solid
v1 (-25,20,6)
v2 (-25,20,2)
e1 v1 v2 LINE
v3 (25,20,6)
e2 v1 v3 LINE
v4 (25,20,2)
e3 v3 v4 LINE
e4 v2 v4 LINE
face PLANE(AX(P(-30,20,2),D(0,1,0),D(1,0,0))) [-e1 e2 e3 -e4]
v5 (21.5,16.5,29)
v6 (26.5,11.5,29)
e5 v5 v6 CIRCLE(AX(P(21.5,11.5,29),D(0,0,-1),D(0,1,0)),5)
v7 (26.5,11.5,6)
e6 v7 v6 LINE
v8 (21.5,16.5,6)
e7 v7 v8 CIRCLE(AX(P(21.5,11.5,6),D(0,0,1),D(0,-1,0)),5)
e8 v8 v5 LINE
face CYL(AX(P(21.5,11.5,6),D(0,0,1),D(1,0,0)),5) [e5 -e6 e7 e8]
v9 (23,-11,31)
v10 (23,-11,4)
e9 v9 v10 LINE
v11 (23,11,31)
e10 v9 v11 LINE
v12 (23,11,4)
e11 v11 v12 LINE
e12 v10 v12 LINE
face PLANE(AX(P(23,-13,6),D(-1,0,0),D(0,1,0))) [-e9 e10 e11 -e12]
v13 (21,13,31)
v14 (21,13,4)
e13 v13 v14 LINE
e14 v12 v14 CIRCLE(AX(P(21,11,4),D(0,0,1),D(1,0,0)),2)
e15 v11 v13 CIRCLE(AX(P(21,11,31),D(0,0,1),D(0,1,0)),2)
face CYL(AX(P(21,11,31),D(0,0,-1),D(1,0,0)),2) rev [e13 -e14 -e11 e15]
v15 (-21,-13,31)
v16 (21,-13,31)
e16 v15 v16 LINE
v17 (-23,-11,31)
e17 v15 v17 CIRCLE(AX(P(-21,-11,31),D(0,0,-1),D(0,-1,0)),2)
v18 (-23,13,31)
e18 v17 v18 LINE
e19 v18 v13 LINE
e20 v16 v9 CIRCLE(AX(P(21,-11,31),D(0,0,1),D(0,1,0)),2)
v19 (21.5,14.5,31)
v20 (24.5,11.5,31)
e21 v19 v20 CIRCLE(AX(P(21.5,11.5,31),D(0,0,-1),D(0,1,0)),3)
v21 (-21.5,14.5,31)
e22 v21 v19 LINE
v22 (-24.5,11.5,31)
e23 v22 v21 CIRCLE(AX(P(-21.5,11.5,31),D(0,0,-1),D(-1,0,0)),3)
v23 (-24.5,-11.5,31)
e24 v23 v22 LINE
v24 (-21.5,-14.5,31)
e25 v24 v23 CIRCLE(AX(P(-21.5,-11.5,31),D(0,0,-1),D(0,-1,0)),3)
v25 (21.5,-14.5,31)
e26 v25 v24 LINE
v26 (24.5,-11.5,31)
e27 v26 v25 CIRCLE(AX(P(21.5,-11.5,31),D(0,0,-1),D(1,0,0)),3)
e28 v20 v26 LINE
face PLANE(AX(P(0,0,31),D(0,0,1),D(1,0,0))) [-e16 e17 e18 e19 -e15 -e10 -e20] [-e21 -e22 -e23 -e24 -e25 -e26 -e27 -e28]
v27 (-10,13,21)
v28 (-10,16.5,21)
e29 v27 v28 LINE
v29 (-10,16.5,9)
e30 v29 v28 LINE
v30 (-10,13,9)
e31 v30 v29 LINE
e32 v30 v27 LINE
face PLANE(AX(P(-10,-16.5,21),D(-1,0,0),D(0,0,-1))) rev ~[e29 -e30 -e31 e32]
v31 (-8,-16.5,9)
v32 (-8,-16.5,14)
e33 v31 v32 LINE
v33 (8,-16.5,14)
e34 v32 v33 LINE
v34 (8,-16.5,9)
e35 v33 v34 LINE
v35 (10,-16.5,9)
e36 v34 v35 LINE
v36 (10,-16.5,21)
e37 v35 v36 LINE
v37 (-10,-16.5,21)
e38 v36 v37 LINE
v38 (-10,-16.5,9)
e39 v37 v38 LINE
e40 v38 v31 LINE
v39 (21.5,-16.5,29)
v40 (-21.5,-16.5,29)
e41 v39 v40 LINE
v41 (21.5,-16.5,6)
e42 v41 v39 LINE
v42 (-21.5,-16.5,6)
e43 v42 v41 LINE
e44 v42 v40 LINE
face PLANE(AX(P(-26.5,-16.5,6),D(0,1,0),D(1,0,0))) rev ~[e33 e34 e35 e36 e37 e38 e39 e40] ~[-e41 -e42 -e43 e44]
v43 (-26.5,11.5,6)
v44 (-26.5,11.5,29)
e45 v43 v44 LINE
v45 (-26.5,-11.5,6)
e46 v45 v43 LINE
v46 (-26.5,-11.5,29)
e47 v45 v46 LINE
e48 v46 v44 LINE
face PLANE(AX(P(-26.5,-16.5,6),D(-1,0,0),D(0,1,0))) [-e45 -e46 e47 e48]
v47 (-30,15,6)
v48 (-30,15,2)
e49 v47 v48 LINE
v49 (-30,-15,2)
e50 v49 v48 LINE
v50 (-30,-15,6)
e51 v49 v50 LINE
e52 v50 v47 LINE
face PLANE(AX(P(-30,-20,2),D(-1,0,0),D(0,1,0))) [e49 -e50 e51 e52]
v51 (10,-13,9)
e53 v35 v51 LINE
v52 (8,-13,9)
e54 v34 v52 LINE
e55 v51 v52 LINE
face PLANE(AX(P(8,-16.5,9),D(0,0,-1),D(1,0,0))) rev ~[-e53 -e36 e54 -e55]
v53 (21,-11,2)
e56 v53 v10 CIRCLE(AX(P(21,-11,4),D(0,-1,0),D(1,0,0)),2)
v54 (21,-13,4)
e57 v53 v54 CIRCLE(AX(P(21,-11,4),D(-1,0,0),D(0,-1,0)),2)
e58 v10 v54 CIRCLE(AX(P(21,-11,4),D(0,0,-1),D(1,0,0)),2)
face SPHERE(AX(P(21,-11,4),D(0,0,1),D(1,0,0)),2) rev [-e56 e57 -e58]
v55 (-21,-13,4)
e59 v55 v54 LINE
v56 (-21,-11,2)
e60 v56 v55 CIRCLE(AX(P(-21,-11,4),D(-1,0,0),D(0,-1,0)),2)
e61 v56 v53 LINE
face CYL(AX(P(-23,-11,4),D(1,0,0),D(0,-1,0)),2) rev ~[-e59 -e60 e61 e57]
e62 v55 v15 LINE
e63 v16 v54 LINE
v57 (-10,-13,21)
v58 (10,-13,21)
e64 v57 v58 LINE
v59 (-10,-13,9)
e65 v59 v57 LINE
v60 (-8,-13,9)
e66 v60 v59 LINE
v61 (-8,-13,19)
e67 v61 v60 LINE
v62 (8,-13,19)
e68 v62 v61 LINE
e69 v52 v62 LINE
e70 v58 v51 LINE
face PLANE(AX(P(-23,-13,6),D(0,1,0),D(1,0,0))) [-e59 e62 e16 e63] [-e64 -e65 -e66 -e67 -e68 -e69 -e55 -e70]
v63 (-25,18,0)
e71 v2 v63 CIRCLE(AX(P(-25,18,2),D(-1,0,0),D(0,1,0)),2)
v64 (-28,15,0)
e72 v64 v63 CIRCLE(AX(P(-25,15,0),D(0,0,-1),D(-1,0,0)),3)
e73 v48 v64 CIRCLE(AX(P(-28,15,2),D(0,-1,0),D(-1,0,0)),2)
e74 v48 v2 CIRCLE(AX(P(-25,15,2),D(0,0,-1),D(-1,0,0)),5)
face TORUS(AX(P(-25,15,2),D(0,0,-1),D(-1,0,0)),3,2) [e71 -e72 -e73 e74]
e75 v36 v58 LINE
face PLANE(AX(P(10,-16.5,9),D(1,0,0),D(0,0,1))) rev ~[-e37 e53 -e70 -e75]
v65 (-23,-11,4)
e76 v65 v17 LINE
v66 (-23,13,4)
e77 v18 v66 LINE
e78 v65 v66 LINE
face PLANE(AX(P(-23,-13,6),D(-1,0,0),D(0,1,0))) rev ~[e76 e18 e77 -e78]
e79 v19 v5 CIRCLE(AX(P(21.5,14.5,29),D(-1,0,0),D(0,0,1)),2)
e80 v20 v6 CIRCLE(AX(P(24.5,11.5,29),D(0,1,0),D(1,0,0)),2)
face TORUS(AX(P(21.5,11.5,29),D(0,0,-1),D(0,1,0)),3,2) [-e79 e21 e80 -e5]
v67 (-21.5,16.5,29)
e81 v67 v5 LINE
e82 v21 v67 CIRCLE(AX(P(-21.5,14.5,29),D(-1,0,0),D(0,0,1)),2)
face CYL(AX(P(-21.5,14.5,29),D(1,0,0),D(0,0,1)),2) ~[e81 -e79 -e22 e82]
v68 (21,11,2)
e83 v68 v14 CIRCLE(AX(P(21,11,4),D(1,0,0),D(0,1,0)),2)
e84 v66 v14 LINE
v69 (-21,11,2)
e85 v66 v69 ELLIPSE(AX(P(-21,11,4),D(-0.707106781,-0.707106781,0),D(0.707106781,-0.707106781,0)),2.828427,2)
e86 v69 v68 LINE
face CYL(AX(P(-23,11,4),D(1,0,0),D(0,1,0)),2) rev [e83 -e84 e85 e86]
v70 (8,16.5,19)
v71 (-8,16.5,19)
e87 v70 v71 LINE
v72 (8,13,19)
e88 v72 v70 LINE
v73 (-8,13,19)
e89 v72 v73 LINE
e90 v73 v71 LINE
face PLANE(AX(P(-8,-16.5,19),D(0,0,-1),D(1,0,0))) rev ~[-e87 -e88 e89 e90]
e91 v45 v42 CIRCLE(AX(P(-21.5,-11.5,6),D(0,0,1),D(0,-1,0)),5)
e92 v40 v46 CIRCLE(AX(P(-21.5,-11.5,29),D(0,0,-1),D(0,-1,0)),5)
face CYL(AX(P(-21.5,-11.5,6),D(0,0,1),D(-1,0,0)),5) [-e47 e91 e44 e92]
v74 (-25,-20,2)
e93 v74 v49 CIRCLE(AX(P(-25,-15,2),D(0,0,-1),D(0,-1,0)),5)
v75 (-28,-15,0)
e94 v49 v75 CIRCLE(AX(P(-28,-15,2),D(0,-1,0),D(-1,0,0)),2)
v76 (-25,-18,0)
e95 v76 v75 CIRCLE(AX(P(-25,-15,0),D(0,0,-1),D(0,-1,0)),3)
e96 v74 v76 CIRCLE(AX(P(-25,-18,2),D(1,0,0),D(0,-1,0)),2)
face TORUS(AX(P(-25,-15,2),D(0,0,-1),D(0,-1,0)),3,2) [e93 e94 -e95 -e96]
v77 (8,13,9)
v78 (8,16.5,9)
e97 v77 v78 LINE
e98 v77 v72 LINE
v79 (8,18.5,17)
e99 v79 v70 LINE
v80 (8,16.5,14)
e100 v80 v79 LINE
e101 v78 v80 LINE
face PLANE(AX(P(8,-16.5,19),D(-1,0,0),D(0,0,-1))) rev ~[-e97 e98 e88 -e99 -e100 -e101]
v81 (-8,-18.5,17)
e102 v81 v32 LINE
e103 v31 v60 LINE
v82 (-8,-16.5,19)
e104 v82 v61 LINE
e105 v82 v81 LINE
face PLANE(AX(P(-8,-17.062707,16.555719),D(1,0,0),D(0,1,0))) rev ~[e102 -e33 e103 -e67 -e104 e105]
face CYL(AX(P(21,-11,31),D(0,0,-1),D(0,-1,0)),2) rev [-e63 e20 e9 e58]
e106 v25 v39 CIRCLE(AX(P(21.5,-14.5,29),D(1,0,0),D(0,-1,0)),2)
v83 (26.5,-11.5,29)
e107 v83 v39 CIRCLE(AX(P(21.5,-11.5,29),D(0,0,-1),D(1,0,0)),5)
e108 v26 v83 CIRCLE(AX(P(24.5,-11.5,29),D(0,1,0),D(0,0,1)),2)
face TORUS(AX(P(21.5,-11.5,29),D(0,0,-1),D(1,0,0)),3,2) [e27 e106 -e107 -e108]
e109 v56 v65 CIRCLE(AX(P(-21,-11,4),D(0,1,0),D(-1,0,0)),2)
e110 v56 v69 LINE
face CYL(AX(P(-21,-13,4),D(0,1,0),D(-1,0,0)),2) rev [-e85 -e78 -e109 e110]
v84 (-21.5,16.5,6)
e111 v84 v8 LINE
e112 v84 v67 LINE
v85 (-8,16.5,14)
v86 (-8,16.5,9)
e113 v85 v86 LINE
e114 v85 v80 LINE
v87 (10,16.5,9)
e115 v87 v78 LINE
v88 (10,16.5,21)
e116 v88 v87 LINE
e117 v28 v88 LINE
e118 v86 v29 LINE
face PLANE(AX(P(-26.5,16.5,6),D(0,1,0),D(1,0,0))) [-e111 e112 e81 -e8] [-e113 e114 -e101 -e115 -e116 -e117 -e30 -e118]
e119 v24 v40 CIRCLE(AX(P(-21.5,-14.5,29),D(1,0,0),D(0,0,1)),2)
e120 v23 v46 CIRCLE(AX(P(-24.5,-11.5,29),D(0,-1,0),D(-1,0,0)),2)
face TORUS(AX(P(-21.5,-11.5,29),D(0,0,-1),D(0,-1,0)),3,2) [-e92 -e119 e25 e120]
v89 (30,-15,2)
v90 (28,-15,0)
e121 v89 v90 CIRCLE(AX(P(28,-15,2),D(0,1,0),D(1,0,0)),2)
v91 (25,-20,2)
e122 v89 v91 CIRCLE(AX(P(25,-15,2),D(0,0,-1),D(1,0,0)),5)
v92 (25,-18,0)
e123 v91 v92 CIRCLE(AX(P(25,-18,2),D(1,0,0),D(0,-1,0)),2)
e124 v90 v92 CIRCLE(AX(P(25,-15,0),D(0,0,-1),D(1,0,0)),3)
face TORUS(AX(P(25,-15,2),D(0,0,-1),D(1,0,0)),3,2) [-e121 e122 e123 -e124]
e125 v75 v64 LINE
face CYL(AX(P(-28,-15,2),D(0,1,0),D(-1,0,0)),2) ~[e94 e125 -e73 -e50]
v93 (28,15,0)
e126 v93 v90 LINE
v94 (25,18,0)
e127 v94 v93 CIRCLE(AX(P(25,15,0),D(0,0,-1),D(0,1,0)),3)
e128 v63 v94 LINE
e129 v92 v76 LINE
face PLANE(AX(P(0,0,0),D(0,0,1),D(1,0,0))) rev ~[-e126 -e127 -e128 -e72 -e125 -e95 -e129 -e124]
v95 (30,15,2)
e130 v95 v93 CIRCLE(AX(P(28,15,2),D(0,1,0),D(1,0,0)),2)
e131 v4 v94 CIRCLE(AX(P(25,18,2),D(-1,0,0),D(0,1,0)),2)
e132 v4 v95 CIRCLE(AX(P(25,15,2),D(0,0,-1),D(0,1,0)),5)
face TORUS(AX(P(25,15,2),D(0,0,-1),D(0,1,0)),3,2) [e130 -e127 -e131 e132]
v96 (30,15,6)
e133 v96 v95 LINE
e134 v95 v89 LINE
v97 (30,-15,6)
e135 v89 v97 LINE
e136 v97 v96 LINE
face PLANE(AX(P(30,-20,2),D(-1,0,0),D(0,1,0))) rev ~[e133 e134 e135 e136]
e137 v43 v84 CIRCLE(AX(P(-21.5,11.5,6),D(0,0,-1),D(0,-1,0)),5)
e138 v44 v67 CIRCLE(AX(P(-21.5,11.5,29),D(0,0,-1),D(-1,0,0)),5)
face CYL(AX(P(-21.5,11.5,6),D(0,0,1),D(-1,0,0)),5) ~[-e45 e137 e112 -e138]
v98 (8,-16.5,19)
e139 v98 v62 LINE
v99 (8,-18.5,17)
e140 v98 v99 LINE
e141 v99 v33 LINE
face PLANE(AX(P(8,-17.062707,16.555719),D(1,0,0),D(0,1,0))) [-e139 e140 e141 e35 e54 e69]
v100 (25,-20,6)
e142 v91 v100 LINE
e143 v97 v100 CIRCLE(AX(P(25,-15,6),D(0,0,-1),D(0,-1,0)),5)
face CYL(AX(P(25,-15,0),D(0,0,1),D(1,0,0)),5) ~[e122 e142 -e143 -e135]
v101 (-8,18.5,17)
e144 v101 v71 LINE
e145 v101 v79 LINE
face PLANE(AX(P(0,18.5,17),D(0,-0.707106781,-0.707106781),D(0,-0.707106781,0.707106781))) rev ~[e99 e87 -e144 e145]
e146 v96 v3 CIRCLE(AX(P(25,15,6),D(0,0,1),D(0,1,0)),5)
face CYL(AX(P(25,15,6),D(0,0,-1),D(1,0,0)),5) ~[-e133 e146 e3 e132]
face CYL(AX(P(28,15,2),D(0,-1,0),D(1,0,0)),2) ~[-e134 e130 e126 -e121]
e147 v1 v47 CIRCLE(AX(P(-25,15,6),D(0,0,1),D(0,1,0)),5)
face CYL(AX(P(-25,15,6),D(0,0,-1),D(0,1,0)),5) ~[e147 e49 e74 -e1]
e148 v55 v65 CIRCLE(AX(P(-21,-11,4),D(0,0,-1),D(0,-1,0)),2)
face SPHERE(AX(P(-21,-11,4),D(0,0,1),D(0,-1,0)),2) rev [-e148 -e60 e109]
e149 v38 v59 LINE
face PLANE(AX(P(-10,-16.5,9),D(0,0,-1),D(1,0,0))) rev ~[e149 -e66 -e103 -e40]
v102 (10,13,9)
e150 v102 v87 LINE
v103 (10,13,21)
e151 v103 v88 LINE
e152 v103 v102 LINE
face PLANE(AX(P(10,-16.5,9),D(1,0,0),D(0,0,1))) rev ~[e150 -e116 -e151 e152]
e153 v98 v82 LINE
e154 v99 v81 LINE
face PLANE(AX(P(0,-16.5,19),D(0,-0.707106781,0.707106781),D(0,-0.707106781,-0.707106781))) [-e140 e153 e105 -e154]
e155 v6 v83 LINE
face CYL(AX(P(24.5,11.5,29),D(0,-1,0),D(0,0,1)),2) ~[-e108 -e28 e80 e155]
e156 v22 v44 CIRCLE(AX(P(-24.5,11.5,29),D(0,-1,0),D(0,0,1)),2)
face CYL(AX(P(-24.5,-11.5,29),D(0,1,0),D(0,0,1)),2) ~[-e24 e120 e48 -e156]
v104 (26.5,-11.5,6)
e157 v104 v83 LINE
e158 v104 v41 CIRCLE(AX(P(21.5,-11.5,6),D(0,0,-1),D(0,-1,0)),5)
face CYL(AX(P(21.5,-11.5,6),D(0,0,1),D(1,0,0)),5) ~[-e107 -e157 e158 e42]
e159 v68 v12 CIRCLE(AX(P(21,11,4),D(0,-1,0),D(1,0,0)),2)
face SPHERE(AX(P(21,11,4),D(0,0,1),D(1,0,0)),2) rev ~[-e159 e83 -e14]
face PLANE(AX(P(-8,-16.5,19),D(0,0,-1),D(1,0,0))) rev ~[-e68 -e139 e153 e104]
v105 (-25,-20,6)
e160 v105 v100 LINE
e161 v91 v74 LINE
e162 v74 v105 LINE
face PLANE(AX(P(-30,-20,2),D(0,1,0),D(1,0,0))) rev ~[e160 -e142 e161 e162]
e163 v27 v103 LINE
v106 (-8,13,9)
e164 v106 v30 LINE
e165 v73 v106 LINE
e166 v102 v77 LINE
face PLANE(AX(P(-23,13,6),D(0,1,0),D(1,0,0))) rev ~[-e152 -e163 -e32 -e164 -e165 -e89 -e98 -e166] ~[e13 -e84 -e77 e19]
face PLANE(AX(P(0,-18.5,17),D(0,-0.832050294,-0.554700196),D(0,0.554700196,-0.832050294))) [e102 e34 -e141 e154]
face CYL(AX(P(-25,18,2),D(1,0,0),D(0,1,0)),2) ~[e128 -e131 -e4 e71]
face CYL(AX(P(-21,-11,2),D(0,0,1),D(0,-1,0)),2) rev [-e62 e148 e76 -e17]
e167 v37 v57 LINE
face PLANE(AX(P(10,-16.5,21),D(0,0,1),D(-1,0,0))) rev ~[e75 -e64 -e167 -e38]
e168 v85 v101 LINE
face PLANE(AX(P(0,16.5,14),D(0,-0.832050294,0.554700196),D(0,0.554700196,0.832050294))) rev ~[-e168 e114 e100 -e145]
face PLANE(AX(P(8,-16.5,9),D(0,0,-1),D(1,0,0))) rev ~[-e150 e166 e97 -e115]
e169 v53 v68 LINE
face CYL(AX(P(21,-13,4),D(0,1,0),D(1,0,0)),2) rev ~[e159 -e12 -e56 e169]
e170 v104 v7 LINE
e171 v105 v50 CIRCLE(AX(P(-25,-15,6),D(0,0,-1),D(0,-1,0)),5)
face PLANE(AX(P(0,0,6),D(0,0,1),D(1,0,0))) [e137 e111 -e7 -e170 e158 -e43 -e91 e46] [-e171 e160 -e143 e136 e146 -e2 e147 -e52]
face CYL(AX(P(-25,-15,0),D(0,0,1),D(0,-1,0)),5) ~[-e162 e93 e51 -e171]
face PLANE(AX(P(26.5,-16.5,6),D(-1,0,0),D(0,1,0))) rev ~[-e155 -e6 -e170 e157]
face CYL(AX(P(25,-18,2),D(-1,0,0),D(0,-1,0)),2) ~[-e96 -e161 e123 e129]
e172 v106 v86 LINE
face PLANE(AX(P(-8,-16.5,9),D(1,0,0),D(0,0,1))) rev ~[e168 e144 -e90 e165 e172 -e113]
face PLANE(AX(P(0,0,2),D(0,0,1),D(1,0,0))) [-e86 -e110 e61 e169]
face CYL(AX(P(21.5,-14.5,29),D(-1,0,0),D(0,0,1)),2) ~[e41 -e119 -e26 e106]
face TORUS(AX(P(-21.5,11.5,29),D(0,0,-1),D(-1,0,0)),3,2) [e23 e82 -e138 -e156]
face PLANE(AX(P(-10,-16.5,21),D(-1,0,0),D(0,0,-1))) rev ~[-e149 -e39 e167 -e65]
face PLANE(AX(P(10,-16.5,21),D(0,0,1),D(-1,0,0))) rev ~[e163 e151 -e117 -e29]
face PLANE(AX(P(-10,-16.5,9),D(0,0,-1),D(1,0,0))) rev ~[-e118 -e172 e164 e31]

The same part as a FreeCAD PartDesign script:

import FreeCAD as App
import Part
import Sketcher
Q = App.Units.Quantity


def edges_at(feature, points):
    """Names of the edges that pass closest to the given points."""
    edges = feature.Shape.Edges
    near = lambda p: min(range(len(edges)), key=lambda i: edges[i].distToShape(Part.Vertex(*p))[0])
    return sorted({f"Edge{near(p) + 1}" for p in points})


def add_polygon(sketch, points):
    """Adds a closed chain of lines whose ends are joined by coincident constraints."""
    first, n = sketch.GeometryCount, len(points)
    for a, b in zip(points, points[1:] + points[:1]):
        sketch.addGeometry(Part.LineSegment(App.Vector(*a, 0), App.Vector(*b, 0)), False)
    for i in range(n):
        sketch.addConstraint(Sketcher.Constraint("Coincident", first + i, 2, first + (i + 1) % n, 1))

doc = App.newDocument("Part")
body = doc.addObject("PartDesign::Body", "Body")

# Sketch on XY plane
sketch1 = body.newObject("Sketcher::SketchObject", "Sketch")
sketch1.AttachmentSupport = (doc.getObject("XY_Plane"), [""])
sketch1.MapMode = "FlatFace"
add_polygon(sketch1, [(-30, 20), (-30, -20), (30, -20), (30, 20)])  # lines 0-3
sketch1.addConstraint([
    Sketcher.Constraint("Vertical", 0),
    Sketcher.Constraint("Horizontal", 1),
    Sketcher.Constraint("Vertical", 2),
    Sketcher.Constraint("Horizontal", 3),
    Sketcher.Constraint("Symmetric", 0, 2, 2, 2, -1, 1),
    Sketcher.Constraint("DistanceX", 1, 1, 1, 2, Q("60 mm")),
    Sketcher.Constraint("DistanceY", 0, 2, 0, 1, Q("40 mm")),
])
pad1 = body.newObject("PartDesign::Pad", "Pad")
pad1.Profile = sketch1
pad1.Length = 2

# Sketch on XY plane
sketch2 = body.newObject("Sketcher::SketchObject", "Sketch001")
sketch2.AttachmentSupport = (doc.getObject("XY_Plane"), [""])
sketch2.MapMode = "FlatFace"
sketch2.AttachmentOffset = App.Placement(App.Vector(0, 0, 2), App.Rotation())
add_polygon(sketch2, [(-30, 20), (-30, -20), (30, -20), (30, 20)])  # lines 0-3
add_polygon(sketch2, [(23, -13), (-23, -13), (-23, 13), (23, 13)])  # lines 4-7
sketch2.addConstraint([
    Sketcher.Constraint("Vertical", 0),
    Sketcher.Constraint("Horizontal", 1),
    Sketcher.Constraint("Vertical", 2),
    Sketcher.Constraint("Horizontal", 3),
    Sketcher.Constraint("Horizontal", 4),
    Sketcher.Constraint("Vertical", 5),
    Sketcher.Constraint("Horizontal", 6),
    Sketcher.Constraint("Vertical", 7),
    Sketcher.Constraint("Symmetric", 0, 2, 2, 2, -1, 1),
    Sketcher.Constraint("Symmetric", 4, 2, 6, 2, -1, 1),
    Sketcher.Constraint("DistanceX", 1, 1, 1, 2, Q("60 mm")),
    Sketcher.Constraint("DistanceX", 4, 2, 4, 1, Q("46 mm")),
    Sketcher.Constraint("DistanceY", 0, 2, 0, 1, Q("40 mm")),
    Sketcher.Constraint("DistanceY", 5, 1, 5, 2, Q("26 mm")),
])
pad2 = body.newObject("PartDesign::Pad", "Pad001")
pad2.Profile = sketch2
pad2.Length = 4

# Sketch on XY plane
sketch3 = body.newObject("Sketcher::SketchObject", "Sketch002")
sketch3.AttachmentSupport = (doc.getObject("XY_Plane"), [""])
sketch3.MapMode = "FlatFace"
sketch3.AttachmentOffset = App.Placement(App.Vector(0, 0, 6), App.Rotation())
add_polygon(sketch3, [(-26, 16), (-26, -16), (26, -16), (26, 16)])  # lines 0-3
add_polygon(sketch3, [(23, -13), (-23, -13), (-23, 13), (23, 13)])  # lines 4-7
sketch3.addConstraint([
    Sketcher.Constraint("Vertical", 0),
    Sketcher.Constraint("Horizontal", 1),
    Sketcher.Constraint("Vertical", 2),
    Sketcher.Constraint("Horizontal", 3),
    Sketcher.Constraint("Horizontal", 4),
    Sketcher.Constraint("Vertical", 5),
    Sketcher.Constraint("Horizontal", 6),
    Sketcher.Constraint("Vertical", 7),
    Sketcher.Constraint("Symmetric", 0, 2, 2, 2, -1, 1),
    Sketcher.Constraint("Symmetric", 4, 2, 6, 2, -1, 1),
    Sketcher.Constraint("DistanceX", 1, 1, 1, 2, Q("53 mm")),
    Sketcher.Constraint("DistanceX", 4, 2, 4, 1, Q("46 mm")),
    Sketcher.Constraint("DistanceY", 0, 2, 0, 1, Q("33 mm")),
    Sketcher.Constraint("DistanceY", 5, 1, 5, 2, Q("26 mm")),
])
pad3 = body.newObject("PartDesign::Pad", "Pad002")
pad3.Profile = sketch3
pad3.Length = 25
doc.recompute()

fillet = body.newObject("PartDesign::Fillet", "Fillet")
fillet.Base = (pad3, edges_at(pad3, [
    (-26.5, -16.5, 18.5),
    (26.5, -16.5, 18.5),
    (-26.5, 16.5, 18.5),
    (-30, -20, 3),
    (30, -20, 3),
    (-30, 20, 3),
    (30, 20, 3),
    (26.5, 16.5, 18.5),
]))
fillet.Radius = 5
doc.recompute()

fillet2 = body.newObject("PartDesign::Fillet", "Fillet001")
fillet2.Base = (fillet, edges_at(fillet, [
    (0, 16.5, 31),
    (0, 20, 0),
    (23, -13, 16.5),
    (-23, -13, 16.5),
    (23, 13, 16.5),
    (23, 0, 2),
    (0, 13, 2),
    (0, -13, 2),
    (-23, 0, 2),
]))
fillet2.Radius = 2

# Sketch on XZ plane
sketch4 = body.newObject("Sketcher::SketchObject", "Sketch003")
sketch4.AttachmentSupport = (doc.getObject("XZ_Plane"), [""])
sketch4.MapMode = "FlatFace"
sketch4.AttachmentOffset = App.Placement(App.Vector(0, 0, 16.5), App.Rotation())
add_polygon(sketch4, [(10, 21), (-10, 21), (-10, 9), (-8, 9), (-8, 19), (8, 19), (8, 9), (10, 9)])  # lines 0-7
sketch4.addConstraint([
    Sketcher.Constraint("Horizontal", 0),
    Sketcher.Constraint("Vertical", 1),
    Sketcher.Constraint("Horizontal", 2),
    Sketcher.Constraint("Vertical", 3),
    Sketcher.Constraint("Horizontal", 4),
    Sketcher.Constraint("Vertical", 5),
    Sketcher.Constraint("Horizontal", 6),
    Sketcher.Constraint("Vertical", 7),
    Sketcher.Constraint("Symmetric", 2, 2, 5, 2, -2),
    Sketcher.Constraint("Equal", 2, 6),
    Sketcher.Constraint("DistanceX", 0, 2, 0, 1, Q("20 mm")),
    Sketcher.Constraint("DistanceX", 2, 1, 2, 2, Q("2 mm")),
    Sketcher.Constraint("DistanceY", 1, 2, 1, 1, Q("12 mm")),
    Sketcher.Constraint("DistanceY", 3, 1, 3, 2, Q("10 mm")),
    Sketcher.Constraint("DistanceY", -1, 1, 0, 2, Q("21 mm")),
])
pocket1 = body.newObject("PartDesign::Pocket", "Pocket")
pocket1.Profile = sketch4
pocket1.Type = "ThroughAll"

# Sketch on YZ plane
sketch5 = body.newObject("Sketcher::SketchObject", "Sketch004")
sketch5.AttachmentSupport = (doc.getObject("YZ_Plane"), [""])
sketch5.MapMode = "FlatFace"
add_polygon(sketch5, [(-18.5, 17), (-16.5, 14), (-16.5, 19)])  # lines 0-2
add_polygon(sketch5, [(16.5, 19), (16.5, 14), (18.5, 17)])  # lines 3-5
sketch5.addConstraint([
    Sketcher.Constraint("Vertical", 1),
    Sketcher.Constraint("Vertical", 3),
    Sketcher.Constraint("Symmetric", 0, 2, 3, 2, -2),
    Sketcher.Constraint("Symmetric", 2, 2, 4, 2, -2),
    Sketcher.Constraint("Perpendicular", 2, 5),
    Sketcher.Constraint("Horizontal", 1, 2, 5, 2),
    Sketcher.Constraint("DistanceY", 1, 1, 1, 2, Q("5 mm")),
    Sketcher.Constraint("DistanceY", -1, 1, 0, 2, Q("14 mm")),
    Sketcher.Constraint("DistanceY", -1, 1, 2, 2, Q("17 mm")),
    Sketcher.Constraint("DistanceX", 0, 2, 3, 2, Q("33 mm")),
])
pad4 = body.newObject("PartDesign::Pad", "Pad003")
pad4.Profile = sketch5
pad4.Type = "TwoLengths"
pad4.Length = 8
pad4.Length2 = 8

doc.recompute()
